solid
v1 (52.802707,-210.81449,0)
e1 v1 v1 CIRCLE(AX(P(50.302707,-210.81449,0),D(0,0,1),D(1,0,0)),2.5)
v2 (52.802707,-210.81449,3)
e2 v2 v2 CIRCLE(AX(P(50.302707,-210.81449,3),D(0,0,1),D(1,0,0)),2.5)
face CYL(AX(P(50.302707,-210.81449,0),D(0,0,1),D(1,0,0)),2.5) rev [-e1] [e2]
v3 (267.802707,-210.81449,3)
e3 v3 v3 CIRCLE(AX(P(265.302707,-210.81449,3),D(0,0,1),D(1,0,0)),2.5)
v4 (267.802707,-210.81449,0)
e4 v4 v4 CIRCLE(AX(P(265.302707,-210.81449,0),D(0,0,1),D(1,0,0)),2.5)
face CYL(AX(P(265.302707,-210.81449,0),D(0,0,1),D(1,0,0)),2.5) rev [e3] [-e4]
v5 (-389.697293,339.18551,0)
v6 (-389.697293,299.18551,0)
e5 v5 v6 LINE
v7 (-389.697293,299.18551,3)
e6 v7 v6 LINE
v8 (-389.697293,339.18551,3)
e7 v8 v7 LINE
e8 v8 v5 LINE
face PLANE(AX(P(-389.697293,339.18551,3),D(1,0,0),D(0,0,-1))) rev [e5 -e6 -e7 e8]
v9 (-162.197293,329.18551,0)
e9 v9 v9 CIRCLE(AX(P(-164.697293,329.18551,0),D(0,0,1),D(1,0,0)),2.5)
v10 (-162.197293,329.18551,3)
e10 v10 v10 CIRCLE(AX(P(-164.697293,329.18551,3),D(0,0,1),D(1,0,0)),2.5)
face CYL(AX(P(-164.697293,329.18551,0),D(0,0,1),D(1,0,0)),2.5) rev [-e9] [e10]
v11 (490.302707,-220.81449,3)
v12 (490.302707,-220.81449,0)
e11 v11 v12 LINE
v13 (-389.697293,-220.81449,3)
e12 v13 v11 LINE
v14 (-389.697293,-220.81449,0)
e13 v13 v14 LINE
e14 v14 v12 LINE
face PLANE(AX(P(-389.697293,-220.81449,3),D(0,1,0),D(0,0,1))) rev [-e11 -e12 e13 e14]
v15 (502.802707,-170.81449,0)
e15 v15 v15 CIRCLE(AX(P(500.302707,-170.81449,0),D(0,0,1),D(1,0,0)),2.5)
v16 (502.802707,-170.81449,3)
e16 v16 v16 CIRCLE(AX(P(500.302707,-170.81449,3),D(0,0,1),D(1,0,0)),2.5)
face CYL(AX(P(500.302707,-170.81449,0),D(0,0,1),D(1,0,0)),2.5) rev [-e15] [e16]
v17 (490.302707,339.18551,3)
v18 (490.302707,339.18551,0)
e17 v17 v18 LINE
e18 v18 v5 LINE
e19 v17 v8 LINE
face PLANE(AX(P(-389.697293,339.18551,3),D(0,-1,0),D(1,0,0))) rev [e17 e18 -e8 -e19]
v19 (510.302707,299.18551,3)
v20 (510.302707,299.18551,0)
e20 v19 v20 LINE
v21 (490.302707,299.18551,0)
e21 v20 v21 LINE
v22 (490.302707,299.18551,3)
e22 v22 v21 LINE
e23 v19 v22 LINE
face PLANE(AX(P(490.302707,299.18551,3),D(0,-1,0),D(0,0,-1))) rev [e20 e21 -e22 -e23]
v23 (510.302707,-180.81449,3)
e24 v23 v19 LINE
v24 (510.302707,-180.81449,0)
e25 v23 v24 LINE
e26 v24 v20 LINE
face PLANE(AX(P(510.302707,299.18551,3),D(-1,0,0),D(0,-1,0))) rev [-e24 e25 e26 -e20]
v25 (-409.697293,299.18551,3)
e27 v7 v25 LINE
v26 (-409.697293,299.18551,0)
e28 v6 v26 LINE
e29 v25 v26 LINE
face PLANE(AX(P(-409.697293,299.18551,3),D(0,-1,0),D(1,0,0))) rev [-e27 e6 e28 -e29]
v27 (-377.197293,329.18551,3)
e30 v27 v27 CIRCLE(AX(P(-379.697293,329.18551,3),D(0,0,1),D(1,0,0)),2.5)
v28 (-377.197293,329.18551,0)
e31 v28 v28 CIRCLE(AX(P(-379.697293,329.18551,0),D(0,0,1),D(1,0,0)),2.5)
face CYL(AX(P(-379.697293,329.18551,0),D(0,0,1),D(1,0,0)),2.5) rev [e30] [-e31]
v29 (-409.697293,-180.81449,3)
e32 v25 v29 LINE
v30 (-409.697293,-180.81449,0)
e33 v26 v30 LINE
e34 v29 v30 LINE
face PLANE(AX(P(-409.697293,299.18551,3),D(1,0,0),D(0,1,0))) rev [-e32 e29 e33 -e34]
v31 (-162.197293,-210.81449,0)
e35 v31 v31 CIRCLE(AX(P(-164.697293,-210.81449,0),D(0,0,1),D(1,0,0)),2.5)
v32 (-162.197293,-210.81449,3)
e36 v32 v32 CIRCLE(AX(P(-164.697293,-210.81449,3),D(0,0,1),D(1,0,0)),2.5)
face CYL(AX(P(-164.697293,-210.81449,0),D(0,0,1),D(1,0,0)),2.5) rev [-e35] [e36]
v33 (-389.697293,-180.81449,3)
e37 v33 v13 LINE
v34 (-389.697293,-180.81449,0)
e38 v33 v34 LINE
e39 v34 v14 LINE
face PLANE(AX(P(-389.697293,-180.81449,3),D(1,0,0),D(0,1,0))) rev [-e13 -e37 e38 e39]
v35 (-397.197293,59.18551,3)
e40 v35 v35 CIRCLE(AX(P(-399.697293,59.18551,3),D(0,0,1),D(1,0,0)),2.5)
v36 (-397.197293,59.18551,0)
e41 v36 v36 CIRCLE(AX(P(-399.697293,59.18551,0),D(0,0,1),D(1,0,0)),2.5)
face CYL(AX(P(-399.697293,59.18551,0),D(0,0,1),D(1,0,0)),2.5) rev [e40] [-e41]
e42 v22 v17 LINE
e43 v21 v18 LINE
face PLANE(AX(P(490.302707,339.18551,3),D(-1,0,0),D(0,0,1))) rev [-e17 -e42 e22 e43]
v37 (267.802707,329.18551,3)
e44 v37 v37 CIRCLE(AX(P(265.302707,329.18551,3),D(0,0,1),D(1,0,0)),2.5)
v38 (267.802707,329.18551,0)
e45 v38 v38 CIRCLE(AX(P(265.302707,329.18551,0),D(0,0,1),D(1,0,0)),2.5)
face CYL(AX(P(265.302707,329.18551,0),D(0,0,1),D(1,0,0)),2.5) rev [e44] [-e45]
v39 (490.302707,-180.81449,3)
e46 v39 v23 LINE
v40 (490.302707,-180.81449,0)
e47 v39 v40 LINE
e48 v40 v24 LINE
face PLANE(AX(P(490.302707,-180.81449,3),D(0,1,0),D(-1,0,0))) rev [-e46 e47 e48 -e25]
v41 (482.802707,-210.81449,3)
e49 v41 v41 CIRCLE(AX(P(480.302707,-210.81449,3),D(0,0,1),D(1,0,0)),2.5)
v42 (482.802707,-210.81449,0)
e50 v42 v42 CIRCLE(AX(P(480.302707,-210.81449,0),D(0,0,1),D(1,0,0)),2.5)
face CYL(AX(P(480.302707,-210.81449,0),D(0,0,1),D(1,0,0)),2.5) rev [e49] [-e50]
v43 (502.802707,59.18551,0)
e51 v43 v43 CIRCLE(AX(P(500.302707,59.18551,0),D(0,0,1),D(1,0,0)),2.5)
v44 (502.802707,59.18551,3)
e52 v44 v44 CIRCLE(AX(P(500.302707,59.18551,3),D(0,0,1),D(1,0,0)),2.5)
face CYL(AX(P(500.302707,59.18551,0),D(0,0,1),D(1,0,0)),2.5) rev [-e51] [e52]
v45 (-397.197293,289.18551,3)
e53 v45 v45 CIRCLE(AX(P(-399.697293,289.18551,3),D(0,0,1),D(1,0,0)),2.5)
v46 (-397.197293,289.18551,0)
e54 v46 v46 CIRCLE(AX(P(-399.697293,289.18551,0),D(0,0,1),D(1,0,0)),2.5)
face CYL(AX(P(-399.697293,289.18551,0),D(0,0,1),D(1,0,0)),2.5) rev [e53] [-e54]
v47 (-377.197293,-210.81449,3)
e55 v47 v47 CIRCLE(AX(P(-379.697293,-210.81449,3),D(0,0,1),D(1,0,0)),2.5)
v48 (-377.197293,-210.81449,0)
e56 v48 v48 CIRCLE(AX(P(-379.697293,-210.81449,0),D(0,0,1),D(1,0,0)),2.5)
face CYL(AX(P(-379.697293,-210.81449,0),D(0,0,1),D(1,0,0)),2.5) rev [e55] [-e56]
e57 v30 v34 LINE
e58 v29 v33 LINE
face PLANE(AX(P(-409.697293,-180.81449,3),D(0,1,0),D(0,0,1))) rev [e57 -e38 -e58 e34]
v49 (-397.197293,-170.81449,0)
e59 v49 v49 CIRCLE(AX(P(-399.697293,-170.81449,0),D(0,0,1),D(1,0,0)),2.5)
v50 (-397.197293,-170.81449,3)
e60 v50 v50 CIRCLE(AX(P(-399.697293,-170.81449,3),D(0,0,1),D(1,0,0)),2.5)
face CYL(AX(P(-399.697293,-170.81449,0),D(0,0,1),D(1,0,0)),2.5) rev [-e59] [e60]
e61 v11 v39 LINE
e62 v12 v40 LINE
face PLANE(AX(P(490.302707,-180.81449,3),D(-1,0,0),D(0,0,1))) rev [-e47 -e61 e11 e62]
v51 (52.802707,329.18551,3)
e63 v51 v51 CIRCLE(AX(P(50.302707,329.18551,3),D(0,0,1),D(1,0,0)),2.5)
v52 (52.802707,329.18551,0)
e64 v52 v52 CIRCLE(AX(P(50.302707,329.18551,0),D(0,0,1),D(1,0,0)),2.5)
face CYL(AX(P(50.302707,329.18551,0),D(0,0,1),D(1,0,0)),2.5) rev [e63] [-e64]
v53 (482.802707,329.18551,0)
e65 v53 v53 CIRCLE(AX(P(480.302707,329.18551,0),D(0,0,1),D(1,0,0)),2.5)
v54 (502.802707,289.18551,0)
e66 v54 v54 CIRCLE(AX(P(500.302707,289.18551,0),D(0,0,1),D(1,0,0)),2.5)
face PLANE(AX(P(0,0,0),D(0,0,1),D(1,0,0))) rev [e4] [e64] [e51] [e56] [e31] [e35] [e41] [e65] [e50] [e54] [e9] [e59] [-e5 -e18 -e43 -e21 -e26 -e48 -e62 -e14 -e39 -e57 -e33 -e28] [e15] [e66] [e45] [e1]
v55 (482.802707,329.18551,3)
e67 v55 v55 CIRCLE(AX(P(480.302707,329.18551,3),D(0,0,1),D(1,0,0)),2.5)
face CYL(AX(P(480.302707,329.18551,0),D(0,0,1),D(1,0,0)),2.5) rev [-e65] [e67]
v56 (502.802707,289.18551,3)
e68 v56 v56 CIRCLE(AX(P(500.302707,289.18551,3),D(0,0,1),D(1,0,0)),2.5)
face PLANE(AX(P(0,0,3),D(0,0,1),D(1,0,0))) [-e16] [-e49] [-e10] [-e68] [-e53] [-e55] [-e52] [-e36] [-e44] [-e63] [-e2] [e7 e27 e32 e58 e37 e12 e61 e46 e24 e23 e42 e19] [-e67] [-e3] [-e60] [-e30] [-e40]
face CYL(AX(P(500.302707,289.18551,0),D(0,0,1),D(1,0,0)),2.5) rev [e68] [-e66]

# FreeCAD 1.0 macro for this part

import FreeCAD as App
import Part
import Sketcher

V = App.Vector
Q = App.Units.Quantity


def add_polygon(sketch, points):
    """Adds a closed chain of lines whose ends are joined by coincident constraints."""
    first, n = sketch.GeometryCount, len(points)
    for a, b in zip(points, points[1:] + points[:1]):
        sketch.addGeometry(Part.LineSegment(App.Vector(*a, 0), App.Vector(*b, 0)), False)
    for i in range(n):
        sketch.addConstraint(Sketcher.Constraint("Coincident", first + i, 2, first + (i + 1) % n, 1))

doc = App.newDocument("Part")
body = doc.addObject("PartDesign::Body", "Body")

sketch1 = doc.addObject("Sketcher::SketchObject", "Sketch")
body.addObject(sketch1)
sketch1.AttachmentSupport = (doc.XY_Plane, [""])
sketch1.MapMode = "FlatFace"
add_polygon(sketch1, [(490, 339), (-390, 339), (-390, 299), (-410, 299), (-410, -181), (-390, -181), (-390, -221), (490, -221), (490, -181), (510, -181), (510, 299), (490, 299)])
sketch1.addConstraint(Sketcher.Constraint("Horizontal", 0))
sketch1.addConstraint(Sketcher.Constraint("Vertical", 1))
sketch1.addConstraint(Sketcher.Constraint("Horizontal", 2))
sketch1.addConstraint(Sketcher.Constraint("Vertical", 3))
sketch1.addConstraint(Sketcher.Constraint("Horizontal", 4))
sketch1.addConstraint(Sketcher.Constraint("Vertical", 5))
sketch1.addConstraint(Sketcher.Constraint("Horizontal", 6))
sketch1.addConstraint(Sketcher.Constraint("Vertical", 7))
sketch1.addConstraint(Sketcher.Constraint("Horizontal", 8))
sketch1.addConstraint(Sketcher.Constraint("Vertical", 9))
sketch1.addConstraint(Sketcher.Constraint("Horizontal", 10))
sketch1.addConstraint(Sketcher.Constraint("Vertical", 11))
sketch1.addConstraint(Sketcher.Constraint("Horizontal", 4, 2, 7, 2))
sketch1.addConstraint(Sketcher.Constraint("Horizontal", 2, 2, 9, 2))
sketch1.addConstraint(Sketcher.Constraint("Vertical", 1, 2, 4, 2))
sketch1.addConstraint(Sketcher.Constraint("Vertical", 7, 2, 10, 2))
sketch1.addConstraint(Sketcher.Constraint("Equal", 4, 8))
sketch1.addConstraint(Sketcher.Constraint("Equal", 1, 5))
sketch1.addConstraint(Sketcher.Constraint("DistanceX", 0, 2, 0, 1, Q("880 mm")))
sketch1.addConstraint(Sketcher.Constraint("DistanceX", 2, 2, 2, 1, Q("20 mm")))
sketch1.addConstraint(Sketcher.Constraint("DistanceY", 1, 2, 1, 1, Q("40 mm")))
sketch1.addConstraint(Sketcher.Constraint("DistanceY", 3, 2, 3, 1, Q("480 mm")))
sketch1.addConstraint(Sketcher.Constraint("DistanceY", -1, 1, 0, 2, Q("339.18551 mm")))
sketch1.addConstraint(Sketcher.Constraint("DistanceX", 0, 2, -1, 1, Q("389.697293 mm")))
pad1 = doc.addObject("PartDesign::Pad", "Pad")
body.addObject(pad1)
pad1.Profile = sketch1
pad1.Length = 3

sketch2 = doc.addObject("Sketcher::SketchObject", "Sketch001")
body.addObject(sketch2)
sketch2.AttachmentSupport = (doc.XY_Plane, [""])
sketch2.MapMode = "FlatFace"
sketch2.AttachmentOffset = App.Placement(V(0, 0, 3), App.Rotation())
sketch2.addGeometry(Part.Circle(V(-379.7, 329.2, 0), V(0, 0, 1), 2.5), False)
sketch2.addGeometry(Part.Circle(V(480.3, 329.2, 0), V(0, 0, 1), 2.5), False)
sketch2.addGeometry(Part.Circle(V(-164.7, 329.2, 0), V(0, 0, 1), 2.5), False)
sketch2.addGeometry(Part.Circle(V(50.3, 329.2, 0), V(0, 0, 1), 2.5), False)
sketch2.addGeometry(Part.Circle(V(265.3, 329.2, 0), V(0, 0, 1), 2.5), False)
sketch2.addGeometry(Part.Circle(V(-379.7, -210.8, 0), V(0, 0, 1), 2.5), False)
sketch2.addGeometry(Part.Circle(V(480.3, -210.8, 0), V(0, 0, 1), 2.5), False)
sketch2.addGeometry(Part.Circle(V(265.3, -210.8, 0), V(0, 0, 1), 2.5), False)
sketch2.addGeometry(Part.Circle(V(50.3, -210.8, 0), V(0, 0, 1), 2.5), False)
sketch2.addGeometry(Part.Circle(V(-164.7, -210.8, 0), V(0, 0, 1), 2.5), False)
sketch2.addGeometry(Part.Circle(V(-399.7, 289.2, 0), V(0, 0, 1), 2.5), False)
sketch2.addGeometry(Part.Circle(V(-399.7, -170.8, 0), V(0, 0, 1), 2.5), False)
sketch2.addGeometry(Part.Circle(V(-399.7, 59.2, 0), V(0, 0, 1), 2.5), False)
sketch2.addGeometry(Part.Circle(V(500.3, 289.2, 0), V(0, 0, 1), 2.5), False)
sketch2.addGeometry(Part.Circle(V(500.3, 59.2, 0), V(0, 0, 1), 2.5), False)
sketch2.addGeometry(Part.Circle(V(500.3, -170.8, 0), V(0, 0, 1), 2.5), False)
sketch2.addConstraint(Sketcher.Constraint("Equal", 0, 1))
sketch2.addConstraint(Sketcher.Constraint("Equal", 1, 2))
sketch2.addConstraint(Sketcher.Constraint("Equal", 2, 3))
sketch2.addConstraint(Sketcher.Constraint("Equal", 3, 4))
sketch2.addConstraint(Sketcher.Constraint("Equal", 4, 5))
sketch2.addConstraint(Sketcher.Constraint("Equal", 5, 6))
sketch2.addConstraint(Sketcher.Constraint("Equal", 6, 7))
sketch2.addConstraint(Sketcher.Constraint("Equal", 7, 8))
sketch2.addConstraint(Sketcher.Constraint("Equal", 8, 9))
sketch2.addConstraint(Sketcher.Constraint("Equal", 9, 10))
sketch2.addConstraint(Sketcher.Constraint("Equal", 10, 11))
sketch2.addConstraint(Sketcher.Constraint("Equal", 11, 12))
sketch2.addConstraint(Sketcher.Constraint("Equal", 12, 13))
sketch2.addConstraint(Sketcher.Constraint("Equal", 13, 14))
sketch2.addConstraint(Sketcher.Constraint("Equal", 14, 15))
sketch2.addConstraint(Sketcher.Constraint("Horizontal", 0, 3, 1, 3))
sketch2.addConstraint(Sketcher.Constraint("Horizontal", 1, 3, 2, 3))
sketch2.addConstraint(Sketcher.Constraint("Horizontal", 2, 3, 3, 3))
sketch2.addConstraint(Sketcher.Constraint("Horizontal", 3, 3, 4, 3))
sketch2.addConstraint(Sketcher.Constraint("Horizontal", 5, 3, 6, 3))
sketch2.addConstraint(Sketcher.Constraint("Horizontal", 6, 3, 7, 3))
sketch2.addConstraint(Sketcher.Constraint("Horizontal", 7, 3, 8, 3))
sketch2.addConstraint(Sketcher.Constraint("Horizontal", 8, 3, 9, 3))
sketch2.addConstraint(Sketcher.Constraint("Horizontal", 10, 3, 13, 3))
sketch2.addConstraint(Sketcher.Constraint("Horizontal", 12, 3, 14, 3))
sketch2.addConstraint(Sketcher.Constraint("Horizontal", 11, 3, 15, 3))
sketch2.addConstraint(Sketcher.Constraint("Vertical", 0, 3, 5, 3))
sketch2.addConstraint(Sketcher.Constraint("Vertical", 1, 3, 6, 3))
sketch2.addConstraint(Sketcher.Constraint("Vertical", 4, 3, 7, 3))
sketch2.addConstraint(Sketcher.Constraint("Vertical", 3, 3, 8, 3))
sketch2.addConstraint(Sketcher.Constraint("Vertical", 2, 3, 9, 3))
sketch2.addConstraint(Sketcher.Constraint("Vertical", 10, 3, 11, 3))
sketch2.addConstraint(Sketcher.Constraint("Vertical", 11, 3, 12, 3))
sketch2.addConstraint(Sketcher.Constraint("Vertical", 13, 3, 14, 3))
sketch2.addConstraint(Sketcher.Constraint("Vertical", 14, 3, 15, 3))
sketch2.addConstraint(Sketcher.Constraint("Diameter", 0, Q("5 mm")))
sketch2.addConstraint(Sketcher.Constraint("DistanceX", 0, 3, 1, 3, Q("860 mm")))
sketch2.addConstraint(Sketcher.Constraint("DistanceX", 0, 3, 2, 3, Q("215 mm")))
sketch2.addConstraint(Sketcher.Constraint("DistanceX", 2, 3, 3, 3, Q("215 mm")))
sketch2.addConstraint(Sketcher.Constraint("DistanceX", 4, 3, 1, 3, Q("215 mm")))
sketch2.addConstraint(Sketcher.Constraint("DistanceY", 5, 3, 0, 3, Q("540 mm")))
sketch2.addConstraint(Sketcher.Constraint("DistanceX", 10, 3, 0, 3, Q("20 mm")))
sketch2.addConstraint(Sketcher.Constraint("DistanceY", 10, 3, 0, 3, Q("40 mm")))
sketch2.addConstraint(Sketcher.Constraint("DistanceY", 5, 3, 11, 3, Q("40 mm")))
sketch2.addConstraint(Sketcher.Constraint("DistanceY", 12, 3, 10, 3, Q("230 mm")))
sketch2.addConstraint(Sketcher.Constraint("DistanceX", 1, 3, 13, 3, Q("20 mm")))
sketch2.addConstraint(Sketcher.Constraint("DistanceY", -1, 1, 0, 3, Q("329.18551 mm")))
sketch2.addConstraint(Sketcher.Constraint("DistanceX", 0, 3, -1, 1, Q("379.697293 mm")))
pocket1 = doc.addObject("PartDesign::Pocket", "Pocket")
body.addObject(pocket1)
pocket1.Profile = sketch2
pocket1.Type = "ThroughAll"

doc.recompute()
